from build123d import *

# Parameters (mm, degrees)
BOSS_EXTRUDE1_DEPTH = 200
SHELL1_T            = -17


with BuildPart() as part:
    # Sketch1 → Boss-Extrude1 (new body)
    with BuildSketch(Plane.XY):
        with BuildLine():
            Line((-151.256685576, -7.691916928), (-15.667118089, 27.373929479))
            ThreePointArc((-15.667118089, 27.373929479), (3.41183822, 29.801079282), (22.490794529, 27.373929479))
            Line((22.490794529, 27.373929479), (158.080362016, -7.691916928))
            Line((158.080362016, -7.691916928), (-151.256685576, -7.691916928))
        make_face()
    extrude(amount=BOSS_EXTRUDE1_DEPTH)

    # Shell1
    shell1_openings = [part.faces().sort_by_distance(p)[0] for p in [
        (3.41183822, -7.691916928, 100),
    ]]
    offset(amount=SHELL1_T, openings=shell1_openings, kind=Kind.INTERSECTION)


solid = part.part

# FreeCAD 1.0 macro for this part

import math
import FreeCAD as App
import Part
import Sketcher
Q = App.Units.Quantity


def faces_at(feature, points):
    """Names of the faces that lie closest to the given points."""
    faces = feature.Shape.Faces
    near = lambda p: min(range(len(faces)), key=lambda i: faces[i].distToShape(Part.Vertex(*p))[0])
    return sorted({f"Face{near(p) + 1}" for p in points})

doc = App.newDocument("Part")
params = doc.addObject("Spreadsheet::Sheet", "Params")
for row, (alias, value) in enumerate([
    ("sketch1_radius", "76.2 mm"),
    ("pad1_length", "200 mm"),
    ("thickness_wall", "17 mm"),
], start=1):
    params.set(f"A{row}", alias)
    params.set(f"B{row}", "=" + value)
    params.setAlias(f"B{row}", alias)

body = doc.addObject("PartDesign::Body", "Body")

# Sketch on XY plane
sketch1 = body.newObject("Sketcher::SketchObject", "Sketch")
sketch1.AttachmentSupport = (doc.getObject("XY_Plane"), [""])
sketch1.MapMode = "FlatFace"
sketch1.addGeometry(Part.LineSegment(App.Vector(-15.667118, 27.373929, 0), App.Vector(-151.256686, -7.691917, 0)), False)
sketch1.addGeometry(Part.LineSegment(App.Vector(-151.256686, -7.691917, 0), App.Vector(158.080362, -7.691917, 0)), False)
sketch1.addGeometry(Part.LineSegment(App.Vector(158.080362, -7.691917, 0), App.Vector(22.490795, 27.373929, 0)), False)
sketch1.addGeometry(Part.ArcOfCircle(Part.Circle(App.Vector(3.411838, -46.398921, 0), App.Vector(0, 0, 1), 76.2), math.radians(75.5), math.radians(104.5)), False)
sketch1.addConstraint(Sketcher.Constraint("Coincident", 0, 2, 1, 1))
sketch1.addConstraint(Sketcher.Constraint("Coincident", 1, 2, 2, 1))
sketch1.addConstraint(Sketcher.Constraint("Tangent", 2, 2, 3, 1))
sketch1.addConstraint(Sketcher.Constraint("Tangent", 3, 2, 0, 1))
sketch1.addConstraint(Sketcher.Constraint("Horizontal", 1))
sketch1.addConstraint(Sketcher.Constraint("Horizontal", 2, 2, 3, 2))
sketch1.addConstraint(Sketcher.Constraint("Radius", 3, 76.2))
sketch1.addConstraint(Sketcher.Constraint("Angle", 0, Q("-165.5 deg")))
sketch1.addConstraint(Sketcher.Constraint("DistanceX", 1, 1, 1, 2, 309.337048))
sketch1.addConstraint(Sketcher.Constraint("DistanceX", -1, 1, 3, 3, 3.411838))
sketch1.addConstraint(Sketcher.Constraint("DistanceY", 3, 3, -1, 1, 46.398921))
sketch1.setExpression("Constraints[6]", "Params.sketch1_radius")
pad1 = body.newObject("PartDesign::Pad", "Pad")
pad1.Profile = sketch1
pad1.setExpression("Length", "Params.pad1_length")
doc.recompute()

thickness = body.newObject("PartDesign::Thickness", "Thickness")
thickness.Base = (pad1, faces_at(pad1, [(3.412, -7.692, 100)]))
thickness.setExpression("Value", "Params.thickness_wall")
thickness.Reversed = True
thickness.Join = "Intersection"

doc.recompute()
